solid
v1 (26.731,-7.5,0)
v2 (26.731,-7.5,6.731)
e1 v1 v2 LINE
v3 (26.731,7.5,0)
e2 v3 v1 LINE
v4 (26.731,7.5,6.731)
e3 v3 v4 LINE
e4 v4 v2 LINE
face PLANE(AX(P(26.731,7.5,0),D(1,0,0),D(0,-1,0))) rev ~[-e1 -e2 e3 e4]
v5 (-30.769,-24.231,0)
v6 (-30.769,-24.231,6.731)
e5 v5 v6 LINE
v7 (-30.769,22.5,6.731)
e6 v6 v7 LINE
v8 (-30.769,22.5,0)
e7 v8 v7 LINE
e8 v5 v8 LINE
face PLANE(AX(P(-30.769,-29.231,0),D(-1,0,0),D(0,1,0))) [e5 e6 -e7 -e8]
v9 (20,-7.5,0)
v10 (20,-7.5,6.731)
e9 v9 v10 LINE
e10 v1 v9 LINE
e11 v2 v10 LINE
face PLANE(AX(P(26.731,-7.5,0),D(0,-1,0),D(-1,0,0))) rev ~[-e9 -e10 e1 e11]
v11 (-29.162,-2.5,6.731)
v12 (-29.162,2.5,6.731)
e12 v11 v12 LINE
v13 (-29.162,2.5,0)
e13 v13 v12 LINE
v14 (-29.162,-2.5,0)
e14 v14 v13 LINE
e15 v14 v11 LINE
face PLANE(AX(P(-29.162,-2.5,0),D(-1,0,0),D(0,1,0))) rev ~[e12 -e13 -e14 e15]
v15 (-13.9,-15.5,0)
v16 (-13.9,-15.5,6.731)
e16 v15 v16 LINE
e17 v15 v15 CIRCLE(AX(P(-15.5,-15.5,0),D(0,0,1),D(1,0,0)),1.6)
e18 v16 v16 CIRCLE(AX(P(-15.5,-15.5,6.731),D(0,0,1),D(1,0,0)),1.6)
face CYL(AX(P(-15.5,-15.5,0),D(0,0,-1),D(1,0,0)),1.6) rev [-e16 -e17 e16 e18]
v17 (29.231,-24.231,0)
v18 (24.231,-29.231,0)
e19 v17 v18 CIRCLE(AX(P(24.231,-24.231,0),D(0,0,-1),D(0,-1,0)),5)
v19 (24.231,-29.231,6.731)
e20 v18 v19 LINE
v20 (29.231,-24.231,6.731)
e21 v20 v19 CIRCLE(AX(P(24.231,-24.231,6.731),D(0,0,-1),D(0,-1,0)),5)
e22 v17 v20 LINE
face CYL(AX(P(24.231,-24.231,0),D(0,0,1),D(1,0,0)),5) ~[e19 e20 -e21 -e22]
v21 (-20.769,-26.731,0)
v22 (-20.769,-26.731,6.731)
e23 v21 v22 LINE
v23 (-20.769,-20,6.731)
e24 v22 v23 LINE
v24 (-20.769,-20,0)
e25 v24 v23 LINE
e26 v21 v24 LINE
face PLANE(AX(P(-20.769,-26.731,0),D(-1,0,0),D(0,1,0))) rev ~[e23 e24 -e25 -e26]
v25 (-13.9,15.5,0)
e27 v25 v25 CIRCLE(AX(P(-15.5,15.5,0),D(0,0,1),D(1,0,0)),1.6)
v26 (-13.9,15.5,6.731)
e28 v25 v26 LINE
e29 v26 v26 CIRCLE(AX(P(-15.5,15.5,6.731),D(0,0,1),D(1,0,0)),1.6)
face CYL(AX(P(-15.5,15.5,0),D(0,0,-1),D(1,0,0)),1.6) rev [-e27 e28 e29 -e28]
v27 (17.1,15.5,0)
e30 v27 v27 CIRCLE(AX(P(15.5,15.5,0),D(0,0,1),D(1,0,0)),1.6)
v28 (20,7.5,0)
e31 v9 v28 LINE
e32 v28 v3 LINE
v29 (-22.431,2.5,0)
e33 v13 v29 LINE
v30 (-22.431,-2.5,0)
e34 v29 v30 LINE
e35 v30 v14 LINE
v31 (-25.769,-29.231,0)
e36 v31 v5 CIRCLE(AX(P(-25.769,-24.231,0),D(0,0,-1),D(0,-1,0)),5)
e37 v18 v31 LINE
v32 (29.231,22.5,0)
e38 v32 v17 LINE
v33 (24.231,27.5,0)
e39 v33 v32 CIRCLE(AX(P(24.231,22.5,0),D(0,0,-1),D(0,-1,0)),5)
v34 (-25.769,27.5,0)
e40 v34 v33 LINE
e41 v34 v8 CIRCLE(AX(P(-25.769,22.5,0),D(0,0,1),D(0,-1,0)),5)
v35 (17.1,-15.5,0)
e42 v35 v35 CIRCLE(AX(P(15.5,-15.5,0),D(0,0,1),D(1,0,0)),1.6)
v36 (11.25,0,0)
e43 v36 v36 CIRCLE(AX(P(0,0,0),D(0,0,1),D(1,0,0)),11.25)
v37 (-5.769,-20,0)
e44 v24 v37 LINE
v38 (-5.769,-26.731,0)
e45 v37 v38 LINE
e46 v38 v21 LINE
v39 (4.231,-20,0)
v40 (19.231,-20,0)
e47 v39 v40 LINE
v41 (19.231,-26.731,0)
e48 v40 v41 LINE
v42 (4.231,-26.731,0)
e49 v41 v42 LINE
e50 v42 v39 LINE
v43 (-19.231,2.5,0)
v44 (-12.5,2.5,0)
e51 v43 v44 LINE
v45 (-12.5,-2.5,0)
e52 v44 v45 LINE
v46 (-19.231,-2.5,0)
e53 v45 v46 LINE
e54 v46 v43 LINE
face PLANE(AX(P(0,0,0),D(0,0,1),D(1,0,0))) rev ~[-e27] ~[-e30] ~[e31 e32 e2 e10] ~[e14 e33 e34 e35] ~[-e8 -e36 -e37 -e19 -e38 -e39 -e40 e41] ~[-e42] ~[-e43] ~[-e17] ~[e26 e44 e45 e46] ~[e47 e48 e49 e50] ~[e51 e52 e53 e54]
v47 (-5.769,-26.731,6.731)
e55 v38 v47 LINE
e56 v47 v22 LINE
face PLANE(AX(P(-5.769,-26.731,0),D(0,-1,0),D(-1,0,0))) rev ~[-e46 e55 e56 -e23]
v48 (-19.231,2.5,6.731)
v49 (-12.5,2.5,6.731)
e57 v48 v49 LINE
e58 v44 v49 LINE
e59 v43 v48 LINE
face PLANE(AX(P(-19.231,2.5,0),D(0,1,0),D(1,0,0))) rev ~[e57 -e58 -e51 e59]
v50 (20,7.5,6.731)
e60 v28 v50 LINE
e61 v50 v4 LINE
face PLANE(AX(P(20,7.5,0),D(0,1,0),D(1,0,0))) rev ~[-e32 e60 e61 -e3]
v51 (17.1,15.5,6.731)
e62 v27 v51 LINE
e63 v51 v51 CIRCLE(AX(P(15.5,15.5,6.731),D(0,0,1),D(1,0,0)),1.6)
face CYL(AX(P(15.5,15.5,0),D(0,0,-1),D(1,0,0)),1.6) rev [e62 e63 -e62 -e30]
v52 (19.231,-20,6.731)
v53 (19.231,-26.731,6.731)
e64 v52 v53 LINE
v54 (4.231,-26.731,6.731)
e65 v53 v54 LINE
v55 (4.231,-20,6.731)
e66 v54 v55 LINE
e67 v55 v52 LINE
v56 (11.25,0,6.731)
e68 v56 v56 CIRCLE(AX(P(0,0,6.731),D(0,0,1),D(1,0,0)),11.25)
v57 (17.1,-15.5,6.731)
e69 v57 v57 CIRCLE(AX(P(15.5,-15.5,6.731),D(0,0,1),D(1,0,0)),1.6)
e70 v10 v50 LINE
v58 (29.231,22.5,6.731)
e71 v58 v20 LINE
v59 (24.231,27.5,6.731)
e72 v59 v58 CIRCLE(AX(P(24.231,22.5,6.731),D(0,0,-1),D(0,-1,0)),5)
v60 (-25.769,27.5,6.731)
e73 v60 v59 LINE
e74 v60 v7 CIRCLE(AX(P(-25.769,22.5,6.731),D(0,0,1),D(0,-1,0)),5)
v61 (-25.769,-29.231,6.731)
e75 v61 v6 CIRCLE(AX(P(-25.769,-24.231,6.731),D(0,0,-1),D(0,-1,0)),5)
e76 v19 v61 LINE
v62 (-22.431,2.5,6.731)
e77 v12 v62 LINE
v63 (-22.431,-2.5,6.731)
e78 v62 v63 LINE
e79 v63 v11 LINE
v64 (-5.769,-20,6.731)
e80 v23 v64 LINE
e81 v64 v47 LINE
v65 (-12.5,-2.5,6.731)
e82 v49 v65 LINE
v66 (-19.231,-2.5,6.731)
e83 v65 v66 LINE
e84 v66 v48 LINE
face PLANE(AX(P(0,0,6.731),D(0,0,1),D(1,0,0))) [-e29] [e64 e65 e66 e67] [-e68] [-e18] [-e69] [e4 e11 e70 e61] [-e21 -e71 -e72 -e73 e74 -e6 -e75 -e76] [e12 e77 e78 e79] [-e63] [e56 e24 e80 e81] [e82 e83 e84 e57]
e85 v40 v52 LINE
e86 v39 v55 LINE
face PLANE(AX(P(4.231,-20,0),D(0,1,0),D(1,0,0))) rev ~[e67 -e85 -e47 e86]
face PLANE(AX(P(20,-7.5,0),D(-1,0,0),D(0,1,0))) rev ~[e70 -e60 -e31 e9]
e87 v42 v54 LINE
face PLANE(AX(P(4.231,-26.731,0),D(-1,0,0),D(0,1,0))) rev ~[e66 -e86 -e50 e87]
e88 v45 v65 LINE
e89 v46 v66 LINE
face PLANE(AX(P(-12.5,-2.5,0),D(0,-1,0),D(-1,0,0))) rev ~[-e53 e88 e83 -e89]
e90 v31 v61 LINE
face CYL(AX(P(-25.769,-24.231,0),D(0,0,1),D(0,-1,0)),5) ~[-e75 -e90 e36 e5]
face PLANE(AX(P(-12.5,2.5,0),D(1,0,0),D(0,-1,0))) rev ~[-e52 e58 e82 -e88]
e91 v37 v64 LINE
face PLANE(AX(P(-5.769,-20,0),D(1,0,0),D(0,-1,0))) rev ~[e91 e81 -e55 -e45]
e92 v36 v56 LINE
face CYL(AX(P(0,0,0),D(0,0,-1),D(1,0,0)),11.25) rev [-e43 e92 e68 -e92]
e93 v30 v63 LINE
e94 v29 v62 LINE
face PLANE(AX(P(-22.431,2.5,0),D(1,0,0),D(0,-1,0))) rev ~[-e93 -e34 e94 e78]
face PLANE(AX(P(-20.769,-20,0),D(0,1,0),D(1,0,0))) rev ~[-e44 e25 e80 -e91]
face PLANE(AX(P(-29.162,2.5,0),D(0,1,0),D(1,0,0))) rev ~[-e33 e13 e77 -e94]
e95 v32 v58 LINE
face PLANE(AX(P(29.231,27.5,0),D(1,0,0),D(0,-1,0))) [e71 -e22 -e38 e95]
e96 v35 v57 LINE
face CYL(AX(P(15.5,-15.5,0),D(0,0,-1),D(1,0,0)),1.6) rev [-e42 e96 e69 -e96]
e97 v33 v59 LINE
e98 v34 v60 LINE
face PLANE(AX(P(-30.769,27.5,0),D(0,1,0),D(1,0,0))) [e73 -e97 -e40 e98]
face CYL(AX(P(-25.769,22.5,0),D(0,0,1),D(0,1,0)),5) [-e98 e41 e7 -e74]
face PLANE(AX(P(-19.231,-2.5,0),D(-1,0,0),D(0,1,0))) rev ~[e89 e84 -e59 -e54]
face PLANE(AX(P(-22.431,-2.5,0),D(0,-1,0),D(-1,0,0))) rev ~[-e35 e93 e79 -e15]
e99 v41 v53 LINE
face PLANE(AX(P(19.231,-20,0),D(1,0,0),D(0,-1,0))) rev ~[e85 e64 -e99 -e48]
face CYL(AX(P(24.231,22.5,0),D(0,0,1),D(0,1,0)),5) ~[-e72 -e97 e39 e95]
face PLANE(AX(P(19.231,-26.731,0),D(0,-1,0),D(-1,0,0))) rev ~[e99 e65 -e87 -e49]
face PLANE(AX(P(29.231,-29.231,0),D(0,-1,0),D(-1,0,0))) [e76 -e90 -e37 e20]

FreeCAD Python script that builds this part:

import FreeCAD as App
import Part
import Sketcher


def edges_at(feature, points):
    """Names of the edges that pass closest to the given points."""
    edges = feature.Shape.Edges
    near = lambda p: min(range(len(edges)), key=lambda i: edges[i].distToShape(Part.Vertex(*p))[0])
    return sorted({f"Edge{near(p) + 1}" for p in points})

doc = App.newDocument("Part")
body = doc.addObject("PartDesign::Body", "Body")

# Sketch on XY plane
sketch1 = body.newObject("Sketcher::SketchObject", "Sketch")
sketch1.AttachmentSupport = (doc.getObject("XY_Plane"), [""])
sketch1.MapMode = "FlatFace"
sketch1.addGeometry([
    Part.LineSegment(App.Vector(29.231, 27.5, 0), App.Vector(-30.769, 27.5, 0)),  # 0
    Part.LineSegment(App.Vector(-30.769, 27.5, 0), App.Vector(-30.769, -29.231, 0)),  # 1
    Part.LineSegment(App.Vector(-30.769, -29.231, 0), App.Vector(29.231, -29.231, 0)),  # 2
    Part.LineSegment(App.Vector(29.231, -29.231, 0), App.Vector(29.231, 27.5, 0)),  # 3
    Part.LineSegment(App.Vector(-20.769, -26.731, 0), App.Vector(-20.769, -20, 0)),  # 4
    Part.LineSegment(App.Vector(-20.769, -20, 0), App.Vector(-5.769, -20, 0)),  # 5
    Part.LineSegment(App.Vector(-5.769, -20, 0), App.Vector(-5.769, -26.731, 0)),  # 6
    Part.LineSegment(App.Vector(-5.769, -26.731, 0), App.Vector(-20.769, -26.731, 0)),  # 7
    Part.Circle(App.Vector(-15.5, -15.5, 0), App.Vector(0, 0, 1), 1.6),  # 8
    Part.LineSegment(App.Vector(4.231, -26.731, 0), App.Vector(4.231, -20, 0)),  # 9
    Part.LineSegment(App.Vector(4.231, -20, 0), App.Vector(19.231, -20, 0)),  # 10
    Part.LineSegment(App.Vector(19.231, -20, 0), App.Vector(19.231, -26.731, 0)),  # 11
    Part.LineSegment(App.Vector(19.231, -26.731, 0), App.Vector(4.231, -26.731, 0)),  # 12
    Part.Circle(App.Vector(15.5, -15.5, 0), App.Vector(0, 0, 1), 1.6),  # 13
    Part.LineSegment(App.Vector(-29.162, -2.5, 0), App.Vector(-29.162, 2.5, 0)),  # 14
    Part.LineSegment(App.Vector(-29.162, 2.5, 0), App.Vector(-22.431, 2.5, 0)),  # 15
    Part.LineSegment(App.Vector(-22.431, 2.5, 0), App.Vector(-22.431, -2.5, 0)),  # 16
    Part.LineSegment(App.Vector(-22.431, -2.5, 0), App.Vector(-29.162, -2.5, 0)),  # 17
    Part.LineSegment(App.Vector(-19.231, -2.5, 0), App.Vector(-19.231, 2.5, 0)),  # 18
    Part.LineSegment(App.Vector(-19.231, 2.5, 0), App.Vector(-12.5, 2.5, 0)),  # 19
    Part.LineSegment(App.Vector(-12.5, 2.5, 0), App.Vector(-12.5, -2.5, 0)),  # 20
    Part.LineSegment(App.Vector(-12.5, -2.5, 0), App.Vector(-19.231, -2.5, 0)),  # 21
    Part.Circle(App.Vector(-15.5, 15.5, 0), App.Vector(0, 0, 1), 1.6),  # 22
    Part.Circle(App.Vector(0, 0, 0), App.Vector(0, 0, 1), 11.25),  # 23
    Part.LineSegment(App.Vector(20, -7.5, 0), App.Vector(20, 7.5, 0)),  # 24
    Part.LineSegment(App.Vector(20, 7.5, 0), App.Vector(26.731, 7.5, 0)),  # 25
    Part.LineSegment(App.Vector(26.731, 7.5, 0), App.Vector(26.731, -7.5, 0)),  # 26
    Part.LineSegment(App.Vector(26.731, -7.5, 0), App.Vector(20, -7.5, 0)),  # 27
    Part.Circle(App.Vector(15.5, 15.5, 0), App.Vector(0, 0, 1), 1.6),  # 28
], False)
sketch1.addConstraint([
    Sketcher.Constraint("Coincident", 0, 2, 1, 1),
    Sketcher.Constraint("Coincident", 1, 2, 2, 1),
    Sketcher.Constraint("Coincident", 2, 2, 3, 1),
    Sketcher.Constraint("Coincident", 3, 2, 0, 1),
    Sketcher.Constraint("Coincident", 4, 2, 5, 1),
    Sketcher.Constraint("Coincident", 5, 2, 6, 1),
    Sketcher.Constraint("Coincident", 6, 2, 7, 1),
    Sketcher.Constraint("Coincident", 7, 2, 4, 1),
    Sketcher.Constraint("Coincident", 9, 2, 10, 1),
    Sketcher.Constraint("Coincident", 10, 2, 11, 1),
    Sketcher.Constraint("Coincident", 11, 2, 12, 1),
    Sketcher.Constraint("Coincident", 12, 2, 9, 1),
    Sketcher.Constraint("Coincident", 14, 2, 15, 1),
    Sketcher.Constraint("Coincident", 15, 2, 16, 1),
    Sketcher.Constraint("Coincident", 16, 2, 17, 1),
    Sketcher.Constraint("Coincident", 17, 2, 14, 1),
    Sketcher.Constraint("Coincident", 18, 2, 19, 1),
    Sketcher.Constraint("Coincident", 19, 2, 20, 1),
    Sketcher.Constraint("Coincident", 20, 2, 21, 1),
    Sketcher.Constraint("Coincident", 21, 2, 18, 1),
    Sketcher.Constraint("Coincident", 24, 2, 25, 1),
    Sketcher.Constraint("Coincident", 25, 2, 26, 1),
    Sketcher.Constraint("Coincident", 26, 2, 27, 1),
    Sketcher.Constraint("Coincident", 27, 2, 24, 1),
    Sketcher.Constraint("Horizontal", 0),
    Sketcher.Constraint("Vertical", 1),
    Sketcher.Constraint("Horizontal", 2),
    Sketcher.Constraint("Vertical", 3),
    Sketcher.Constraint("Vertical", 4),
    Sketcher.Constraint("Horizontal", 5),
    Sketcher.Constraint("Vertical", 6),
    Sketcher.Constraint("Horizontal", 7),
    Sketcher.Constraint("Vertical", 9),
    Sketcher.Constraint("Horizontal", 10),
    Sketcher.Constraint("Vertical", 11),
    Sketcher.Constraint("Horizontal", 12),
    Sketcher.Constraint("Vertical", 14),
    Sketcher.Constraint("Horizontal", 15),
    Sketcher.Constraint("Vertical", 16),
    Sketcher.Constraint("Horizontal", 17),
    Sketcher.Constraint("Vertical", 18),
    Sketcher.Constraint("Horizontal", 19),
    Sketcher.Constraint("Vertical", 20),
    Sketcher.Constraint("Horizontal", 21),
    Sketcher.Constraint("Vertical", 24),
    Sketcher.Constraint("Horizontal", 25),
    Sketcher.Constraint("Vertical", 26),
    Sketcher.Constraint("Horizontal", 27),
    Sketcher.Constraint("Coincident", 23, 3, -1, 1),
    Sketcher.Constraint("Equal", 8, 13),
    Sketcher.Constraint("Equal", 13, 22),
    Sketcher.Constraint("Equal", 22, 28),
    Sketcher.Constraint("Symmetric", 13, 3, 22, 3, -1, 1),
    Sketcher.Constraint("Symmetric", 8, 3, 28, 3, -1, 1),
    Sketcher.Constraint("Symmetric", 8, 3, 13, 3, -2),
    Sketcher.Constraint("Horizontal", 5, 2, 9, 2),
    Sketcher.Constraint("Horizontal", 7, 2, 11, 2),
    Sketcher.Constraint("Horizontal", 15, 2, 18, 2),
    Sketcher.Constraint("Horizontal", 17, 2, 20, 2),
    Sketcher.Constraint("Equal", 7, 10),
    Sketcher.Constraint("Equal", 17, 19),
    Sketcher.Constraint("Equal", 21, 25),
    Sketcher.Constraint("Equal", 27, 4),
    Sketcher.Constraint("Equal", 12, 24),
    Sketcher.Constraint("Diameter", 8, 3.2),
    Sketcher.Constraint("Diameter", 23, 22.5),
    Sketcher.Constraint("DistanceX", 0, 2, 0, 1, 60.0),
    Sketcher.Constraint("DistanceX", 5, 1, 5, 2, 15.0),
    Sketcher.Constraint("DistanceY", 14, 1, 14, 2, 5.0),
    Sketcher.Constraint("DistanceY", 4, 2, -1, 1, 20.0),
    Sketcher.Constraint("DistanceX", -1, 1, 24, 2, 20.0),
    Sketcher.Constraint("DistanceX", 8, 3, 13, 3, 31.0),
    Sketcher.Constraint("DistanceY", 8, 3, 22, 3, 31.0),
    Sketcher.Constraint("DistanceX", 1, 2, 4, 2, 10.0),
    Sketcher.Constraint("DistanceX", 5, 2, 9, 2, 10.0),
    Sketcher.Constraint("DistanceY", 24, 2, 3, 2, 20.0),
    Sketcher.Constraint("DistanceY", -1, 1, 14, 2, 2.5),
    Sketcher.Constraint("DistanceY", 1, 2, 6, 2, 2.5),
    Sketcher.Constraint("DistanceX", 15, 2, 18, 2, 3.2),
    Sketcher.Constraint("DistanceX", 25, 2, 3, 2, 2.5),
    Sketcher.Constraint("DistanceX", 15, 1, 15, 2, 6.731),
    Sketcher.Constraint("DistanceY", 22, 3, 0, 2, 12.0),
    Sketcher.Constraint("DistanceX", 22, 3, 19, 2, 3.0),
])
pad1 = body.newObject("PartDesign::Pad", "Pad")
pad1.Profile = sketch1
pad1.Length = 6.731
doc.recompute()

fillet = body.newObject("PartDesign::Fillet", "Fillet")
fillet.Base = (pad1, edges_at(pad1, [
    (29.231, 27.5, 3.365),
    (29.231, -29.231, 3.365),
    (-30.769, -29.231, 3.365),
    (-30.769, 27.5, 3.365),
]))
fillet.Radius = 5

doc.recompute()
